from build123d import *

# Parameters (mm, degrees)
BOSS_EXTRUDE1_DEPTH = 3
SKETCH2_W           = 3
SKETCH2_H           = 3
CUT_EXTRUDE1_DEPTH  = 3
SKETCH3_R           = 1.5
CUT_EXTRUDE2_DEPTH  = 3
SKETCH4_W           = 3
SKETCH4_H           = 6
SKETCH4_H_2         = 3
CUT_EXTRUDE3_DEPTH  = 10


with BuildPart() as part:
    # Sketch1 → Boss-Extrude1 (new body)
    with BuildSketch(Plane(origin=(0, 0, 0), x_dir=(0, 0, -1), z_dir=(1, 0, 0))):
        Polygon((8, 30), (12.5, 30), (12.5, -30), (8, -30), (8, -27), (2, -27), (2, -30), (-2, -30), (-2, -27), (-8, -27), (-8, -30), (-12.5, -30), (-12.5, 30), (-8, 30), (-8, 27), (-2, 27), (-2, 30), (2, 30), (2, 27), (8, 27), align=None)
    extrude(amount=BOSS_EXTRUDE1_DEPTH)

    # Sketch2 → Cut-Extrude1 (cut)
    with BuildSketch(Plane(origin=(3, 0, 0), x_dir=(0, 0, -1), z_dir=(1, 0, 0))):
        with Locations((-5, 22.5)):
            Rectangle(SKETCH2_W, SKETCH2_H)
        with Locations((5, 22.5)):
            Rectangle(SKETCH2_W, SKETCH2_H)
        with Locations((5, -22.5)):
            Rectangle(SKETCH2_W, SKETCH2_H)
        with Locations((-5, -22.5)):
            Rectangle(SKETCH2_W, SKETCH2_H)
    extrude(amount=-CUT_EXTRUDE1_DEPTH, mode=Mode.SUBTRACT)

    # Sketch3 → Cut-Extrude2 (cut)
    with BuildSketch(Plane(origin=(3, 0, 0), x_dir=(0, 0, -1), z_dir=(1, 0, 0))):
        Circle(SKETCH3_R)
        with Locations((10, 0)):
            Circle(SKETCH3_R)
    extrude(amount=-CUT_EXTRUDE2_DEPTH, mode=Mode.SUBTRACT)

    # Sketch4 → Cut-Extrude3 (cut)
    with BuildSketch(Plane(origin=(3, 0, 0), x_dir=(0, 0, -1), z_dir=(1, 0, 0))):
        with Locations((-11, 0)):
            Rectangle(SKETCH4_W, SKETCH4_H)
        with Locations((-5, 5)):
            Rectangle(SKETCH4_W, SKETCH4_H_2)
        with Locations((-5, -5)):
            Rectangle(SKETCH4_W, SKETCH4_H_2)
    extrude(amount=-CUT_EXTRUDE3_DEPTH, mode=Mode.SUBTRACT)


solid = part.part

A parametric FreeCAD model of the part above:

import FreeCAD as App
import Part
import Sketcher
Q = App.Units.Quantity

doc = App.newDocument("Part")
body = doc.addObject("PartDesign::Body", "Body")

# Sketch on YZ plane
sketch1 = body.newObject("Sketcher::SketchObject", "Sketch")
sketch1.AttachmentSupport = (doc.getObject("YZ_Plane"), [""])
sketch1.MapMode = "FlatFace"
sketch1.addGeometry(Part.LineSegment(App.Vector(30, -12.5, 0), App.Vector(30, -8, 0)), False)
sketch1.addGeometry(Part.LineSegment(App.Vector(30, -8, 0), App.Vector(27, -8, 0)), False)
sketch1.addGeometry(Part.LineSegment(App.Vector(27, -8, 0), App.Vector(27, -2, 0)), False)
sketch1.addGeometry(Part.LineSegment(App.Vector(27, -2, 0), App.Vector(30, -2, 0)), False)
sketch1.addGeometry(Part.LineSegment(App.Vector(30, -2, 0), App.Vector(30, 2, 0)), False)
sketch1.addGeometry(Part.LineSegment(App.Vector(30, 2, 0), App.Vector(27, 2, 0)), False)
sketch1.addGeometry(Part.LineSegment(App.Vector(27, 2, 0), App.Vector(27, 8, 0)), False)
sketch1.addGeometry(Part.LineSegment(App.Vector(27, 8, 0), App.Vector(30, 8, 0)), False)
sketch1.addGeometry(Part.LineSegment(App.Vector(30, 8, 0), App.Vector(30, 12.5, 0)), False)
sketch1.addGeometry(Part.LineSegment(App.Vector(30, 12.5, 0), App.Vector(-30, 12.5, 0)), False)
sketch1.addGeometry(Part.LineSegment(App.Vector(-30, 12.5, 0), App.Vector(-30, 8, 0)), False)
sketch1.addGeometry(Part.LineSegment(App.Vector(-30, 8, 0), App.Vector(-27, 8, 0)), False)
sketch1.addGeometry(Part.LineSegment(App.Vector(-27, 8, 0), App.Vector(-27, 2, 0)), False)
sketch1.addGeometry(Part.LineSegment(App.Vector(-27, 2, 0), App.Vector(-30, 2, 0)), False)
sketch1.addGeometry(Part.LineSegment(App.Vector(-30, 2, 0), App.Vector(-30, -2, 0)), False)
sketch1.addGeometry(Part.LineSegment(App.Vector(-30, -2, 0), App.Vector(-27, -2, 0)), False)
sketch1.addGeometry(Part.LineSegment(App.Vector(-27, -2, 0), App.Vector(-27, -8, 0)), False)
sketch1.addGeometry(Part.LineSegment(App.Vector(-27, -8, 0), App.Vector(-30, -8, 0)), False)
sketch1.addGeometry(Part.LineSegment(App.Vector(-30, -8, 0), App.Vector(-30, -12.5, 0)), False)
sketch1.addGeometry(Part.LineSegment(App.Vector(-30, -12.5, 0), App.Vector(30, -12.5, 0)), False)
sketch1.addConstraint(Sketcher.Constraint("Coincident", 0, 2, 1, 1))
sketch1.addConstraint(Sketcher.Constraint("Coincident", 1, 2, 2, 1))
sketch1.addConstraint(Sketcher.Constraint("Coincident", 2, 2, 3, 1))
sketch1.addConstraint(Sketcher.Constraint("Coincident", 3, 2, 4, 1))
sketch1.addConstraint(Sketcher.Constraint("Coincident", 4, 2, 5, 1))
sketch1.addConstraint(Sketcher.Constraint("Coincident", 5, 2, 6, 1))
sketch1.addConstraint(Sketcher.Constraint("Coincident", 6, 2, 7, 1))
sketch1.addConstraint(Sketcher.Constraint("Coincident", 7, 2, 8, 1))
sketch1.addConstraint(Sketcher.Constraint("Coincident", 8, 2, 9, 1))
sketch1.addConstraint(Sketcher.Constraint("Coincident", 9, 2, 10, 1))
sketch1.addConstraint(Sketcher.Constraint("Coincident", 10, 2, 11, 1))
sketch1.addConstraint(Sketcher.Constraint("Coincident", 11, 2, 12, 1))
sketch1.addConstraint(Sketcher.Constraint("Coincident", 12, 2, 13, 1))
sketch1.addConstraint(Sketcher.Constraint("Coincident", 13, 2, 14, 1))
sketch1.addConstraint(Sketcher.Constraint("Coincident", 14, 2, 15, 1))
sketch1.addConstraint(Sketcher.Constraint("Coincident", 15, 2, 16, 1))
sketch1.addConstraint(Sketcher.Constraint("Coincident", 16, 2, 17, 1))
sketch1.addConstraint(Sketcher.Constraint("Coincident", 17, 2, 18, 1))
sketch1.addConstraint(Sketcher.Constraint("Coincident", 18, 2, 19, 1))
sketch1.addConstraint(Sketcher.Constraint("Coincident", 19, 2, 0, 1))
sketch1.addConstraint(Sketcher.Constraint("Vertical", 0))
sketch1.addConstraint(Sketcher.Constraint("Horizontal", 1))
sketch1.addConstraint(Sketcher.Constraint("Vertical", 2))
sketch1.addConstraint(Sketcher.Constraint("Horizontal", 3))
sketch1.addConstraint(Sketcher.Constraint("Vertical", 4))
sketch1.addConstraint(Sketcher.Constraint("Horizontal", 5))
sketch1.addConstraint(Sketcher.Constraint("Vertical", 6))
sketch1.addConstraint(Sketcher.Constraint("Horizontal", 7))
sketch1.addConstraint(Sketcher.Constraint("Vertical", 8))
sketch1.addConstraint(Sketcher.Constraint("Horizontal", 9))
sketch1.addConstraint(Sketcher.Constraint("Vertical", 10))
sketch1.addConstraint(Sketcher.Constraint("Horizontal", 11))
sketch1.addConstraint(Sketcher.Constraint("Vertical", 12))
sketch1.addConstraint(Sketcher.Constraint("Horizontal", 13))
sketch1.addConstraint(Sketcher.Constraint("Vertical", 14))
sketch1.addConstraint(Sketcher.Constraint("Horizontal", 15))
sketch1.addConstraint(Sketcher.Constraint("Vertical", 16))
sketch1.addConstraint(Sketcher.Constraint("Horizontal", 17))
sketch1.addConstraint(Sketcher.Constraint("Vertical", 18))
sketch1.addConstraint(Sketcher.Constraint("Horizontal", 19))
sketch1.addConstraint(Sketcher.Constraint("Symmetric", 0, 2, 10, 2, -1, 1))
sketch1.addConstraint(Sketcher.Constraint("Symmetric", 2, 2, 12, 2, -1, 1))
sketch1.addConstraint(Sketcher.Constraint("Symmetric", 4, 2, 14, 2, -1, 1))
sketch1.addConstraint(Sketcher.Constraint("Symmetric", 6, 2, 16, 2, -1, 1))
sketch1.addConstraint(Sketcher.Constraint("Symmetric", 8, 2, 18, 2, -1, 1))
sketch1.addConstraint(Sketcher.Constraint("Symmetric", 7, 2, 10, 2, -2))
sketch1.addConstraint(Sketcher.Constraint("Symmetric", 5, 2, 12, 2, -2))
sketch1.addConstraint(Sketcher.Constraint("Vertical", 0, 2, 3, 2))
sketch1.addConstraint(Sketcher.Constraint("DistanceX", 1, 2, 1, 1, Q("3 mm")))
sketch1.addConstraint(Sketcher.Constraint("DistanceX", 9, 2, 9, 1, Q("60 mm")))
sketch1.addConstraint(Sketcher.Constraint("DistanceY", 2, 1, 2, 2, Q("6 mm")))
sketch1.addConstraint(Sketcher.Constraint("DistanceY", 4, 1, 4, 2, Q("4 mm")))
sketch1.addConstraint(Sketcher.Constraint("DistanceY", 0, 1, 0, 2, Q("4.5 mm")))
pad1 = body.newObject("PartDesign::Pad", "Pad")
pad1.Profile = sketch1
pad1.Length = 3

# Sketch on YZ plane
sketch2 = body.newObject("Sketcher::SketchObject", "Sketch001")
sketch2.AttachmentSupport = (doc.getObject("YZ_Plane"), [""])
sketch2.MapMode = "FlatFace"
sketch2.AttachmentOffset = App.Placement(App.Vector(0, 0, 3), App.Rotation())
sketch2.addGeometry(Part.LineSegment(App.Vector(24, 6.5, 0), App.Vector(21, 6.5, 0)), False)
sketch2.addGeometry(Part.LineSegment(App.Vector(21, 6.5, 0), App.Vector(21, 3.5, 0)), False)
sketch2.addGeometry(Part.LineSegment(App.Vector(21, 3.5, 0), App.Vector(24, 3.5, 0)), False)
sketch2.addGeometry(Part.LineSegment(App.Vector(24, 3.5, 0), App.Vector(24, 6.5, 0)), False)
sketch2.addGeometry(Part.LineSegment(App.Vector(24, -3.5, 0), App.Vector(21, -3.5, 0)), False)
sketch2.addGeometry(Part.LineSegment(App.Vector(21, -3.5, 0), App.Vector(21, -6.5, 0)), False)
sketch2.addGeometry(Part.LineSegment(App.Vector(21, -6.5, 0), App.Vector(24, -6.5, 0)), False)
sketch2.addGeometry(Part.LineSegment(App.Vector(24, -6.5, 0), App.Vector(24, -3.5, 0)), False)
sketch2.addGeometry(Part.LineSegment(App.Vector(-21, -3.5, 0), App.Vector(-24, -3.5, 0)), False)
sketch2.addGeometry(Part.LineSegment(App.Vector(-24, -3.5, 0), App.Vector(-24, -6.5, 0)), False)
sketch2.addGeometry(Part.LineSegment(App.Vector(-24, -6.5, 0), App.Vector(-21, -6.5, 0)), False)
sketch2.addGeometry(Part.LineSegment(App.Vector(-21, -6.5, 0), App.Vector(-21, -3.5, 0)), False)
sketch2.addGeometry(Part.LineSegment(App.Vector(-21, 6.5, 0), App.Vector(-24, 6.5, 0)), False)
sketch2.addGeometry(Part.LineSegment(App.Vector(-24, 6.5, 0), App.Vector(-24, 3.5, 0)), False)
sketch2.addGeometry(Part.LineSegment(App.Vector(-24, 3.5, 0), App.Vector(-21, 3.5, 0)), False)
sketch2.addGeometry(Part.LineSegment(App.Vector(-21, 3.5, 0), App.Vector(-21, 6.5, 0)), False)
sketch2.addConstraint(Sketcher.Constraint("Coincident", 0, 2, 1, 1))
sketch2.addConstraint(Sketcher.Constraint("Coincident", 1, 2, 2, 1))
sketch2.addConstraint(Sketcher.Constraint("Coincident", 2, 2, 3, 1))
sketch2.addConstraint(Sketcher.Constraint("Coincident", 3, 2, 0, 1))
sketch2.addConstraint(Sketcher.Constraint("Coincident", 4, 2, 5, 1))
sketch2.addConstraint(Sketcher.Constraint("Coincident", 5, 2, 6, 1))
sketch2.addConstraint(Sketcher.Constraint("Coincident", 6, 2, 7, 1))
sketch2.addConstraint(Sketcher.Constraint("Coincident", 7, 2, 4, 1))
sketch2.addConstraint(Sketcher.Constraint("Coincident", 8, 2, 9, 1))
sketch2.addConstraint(Sketcher.Constraint("Coincident", 9, 2, 10, 1))
sketch2.addConstraint(Sketcher.Constraint("Coincident", 10, 2, 11, 1))
sketch2.addConstraint(Sketcher.Constraint("Coincident", 11, 2, 8, 1))
sketch2.addConstraint(Sketcher.Constraint("Coincident", 12, 2, 13, 1))
sketch2.addConstraint(Sketcher.Constraint("Coincident", 13, 2, 14, 1))
sketch2.addConstraint(Sketcher.Constraint("Coincident", 14, 2, 15, 1))
sketch2.addConstraint(Sketcher.Constraint("Coincident", 15, 2, 12, 1))
sketch2.addConstraint(Sketcher.Constraint("Horizontal", 0))
sketch2.addConstraint(Sketcher.Constraint("Vertical", 1))
sketch2.addConstraint(Sketcher.Constraint("Horizontal", 2))
sketch2.addConstraint(Sketcher.Constraint("Vertical", 3))
sketch2.addConstraint(Sketcher.Constraint("Horizontal", 4))
sketch2.addConstraint(Sketcher.Constraint("Vertical", 5))
sketch2.addConstraint(Sketcher.Constraint("Horizontal", 6))
sketch2.addConstraint(Sketcher.Constraint("Vertical", 7))
sketch2.addConstraint(Sketcher.Constraint("Horizontal", 8))
sketch2.addConstraint(Sketcher.Constraint("Vertical", 9))
sketch2.addConstraint(Sketcher.Constraint("Horizontal", 10))
sketch2.addConstraint(Sketcher.Constraint("Vertical", 11))
sketch2.addConstraint(Sketcher.Constraint("Horizontal", 12))
sketch2.addConstraint(Sketcher.Constraint("Vertical", 13))
sketch2.addConstraint(Sketcher.Constraint("Horizontal", 14))
sketch2.addConstraint(Sketcher.Constraint("Vertical", 15))
sketch2.addConstraint(Sketcher.Constraint("Symmetric", 2, 2, 8, 2, -1, 1))
sketch2.addConstraint(Sketcher.Constraint("Symmetric", 0, 2, 10, 2, -1, 1))
sketch2.addConstraint(Sketcher.Constraint("Symmetric", 6, 2, 12, 2, -1, 1))
sketch2.addConstraint(Sketcher.Constraint("Symmetric", 4, 2, 14, 2, -1, 1))
sketch2.addConstraint(Sketcher.Constraint("Symmetric", 7, 2, 8, 2, -2))
sketch2.addConstraint(Sketcher.Constraint("Symmetric", 5, 2, 10, 2, -2))
sketch2.addConstraint(Sketcher.Constraint("Equal", 14, 1))
sketch2.addConstraint(Sketcher.Constraint("DistanceX", 0, 2, 0, 1, Q("3 mm")))
sketch2.addConstraint(Sketcher.Constraint("DistanceX", -1, 1, 0, 2, Q("21 mm")))
sketch2.addConstraint(Sketcher.Constraint("DistanceY", 4, 2, 1, 2, Q("7 mm")))
pocket1 = body.newObject("PartDesign::Pocket", "Pocket")
pocket1.Profile = sketch2
pocket1.Length = 3

# Sketch on YZ plane
sketch3 = body.newObject("Sketcher::SketchObject", "Sketch002")
sketch3.AttachmentSupport = (doc.getObject("YZ_Plane"), [""])
sketch3.MapMode = "FlatFace"
sketch3.AttachmentOffset = App.Placement(App.Vector(0, 0, 3), App.Rotation())
sketch3.addGeometry(Part.Circle(App.Vector(0, 0, 0), App.Vector(0, 0, 1), 1.5), False)
sketch3.addGeometry(Part.Circle(App.Vector(0, -10, 0), App.Vector(0, 0, 1), 1.5), False)
sketch3.addConstraint(Sketcher.Constraint("Coincident", 0, 3, -1, 1))
sketch3.addConstraint(Sketcher.Constraint("Equal", 0, 1))
sketch3.addConstraint(Sketcher.Constraint("PointOnObject", 1, 3, -2))
sketch3.addConstraint(Sketcher.Constraint("Diameter", 0, Q("3 mm")))
sketch3.addConstraint(Sketcher.Constraint("DistanceY", 1, 3, -1, 1, Q("10 mm")))
pocket2 = body.newObject("PartDesign::Pocket", "Pocket001")
pocket2.Profile = sketch3
pocket2.Length = 3

# Sketch on YZ plane
sketch4 = body.newObject("Sketcher::SketchObject", "Sketch003")
sketch4.AttachmentSupport = (doc.getObject("YZ_Plane"), [""])
sketch4.MapMode = "FlatFace"
sketch4.AttachmentOffset = App.Placement(App.Vector(0, 0, 3), App.Rotation())
sketch4.addGeometry(Part.LineSegment(App.Vector(3, 12.5, 0), App.Vector(-3, 12.5, 0)), False)
sketch4.addGeometry(Part.LineSegment(App.Vector(-3, 12.5, 0), App.Vector(-3, 9.5, 0)), False)
sketch4.addGeometry(Part.LineSegment(App.Vector(-3, 9.5, 0), App.Vector(3, 9.5, 0)), False)
sketch4.addGeometry(Part.LineSegment(App.Vector(3, 9.5, 0), App.Vector(3, 12.5, 0)), False)
sketch4.addGeometry(Part.LineSegment(App.Vector(6.5, 6.5, 0), App.Vector(3.5, 6.5, 0)), False)
sketch4.addGeometry(Part.LineSegment(App.Vector(3.5, 6.5, 0), App.Vector(3.5, 3.5, 0)), False)
sketch4.addGeometry(Part.LineSegment(App.Vector(3.5, 3.5, 0), App.Vector(6.5, 3.5, 0)), False)
sketch4.addGeometry(Part.LineSegment(App.Vector(6.5, 3.5, 0), App.Vector(6.5, 6.5, 0)), False)
sketch4.addGeometry(Part.LineSegment(App.Vector(-3.5, 6.5, 0), App.Vector(-6.5, 6.5, 0)), False)
sketch4.addGeometry(Part.LineSegment(App.Vector(-6.5, 6.5, 0), App.Vector(-6.5, 3.5, 0)), False)
sketch4.addGeometry(Part.LineSegment(App.Vector(-6.5, 3.5, 0), App.Vector(-3.5, 3.5, 0)), False)
sketch4.addGeometry(Part.LineSegment(App.Vector(-3.5, 3.5, 0), App.Vector(-3.5, 6.5, 0)), False)
sketch4.addConstraint(Sketcher.Constraint("Coincident", 0, 2, 1, 1))
sketch4.addConstraint(Sketcher.Constraint("Coincident", 1, 2, 2, 1))
sketch4.addConstraint(Sketcher.Constraint("Coincident", 2, 2, 3, 1))
sketch4.addConstraint(Sketcher.Constraint("Coincident", 3, 2, 0, 1))
sketch4.addConstraint(Sketcher.Constraint("Coincident", 4, 2, 5, 1))
sketch4.addConstraint(Sketcher.Constraint("Coincident", 5, 2, 6, 1))
sketch4.addConstraint(Sketcher.Constraint("Coincident", 6, 2, 7, 1))
sketch4.addConstraint(Sketcher.Constraint("Coincident", 7, 2, 4, 1))
sketch4.addConstraint(Sketcher.Constraint("Coincident", 8, 2, 9, 1))
sketch4.addConstraint(Sketcher.Constraint("Coincident", 9, 2, 10, 1))
sketch4.addConstraint(Sketcher.Constraint("Coincident", 10, 2, 11, 1))
sketch4.addConstraint(Sketcher.Constraint("Coincident", 11, 2, 8, 1))
sketch4.addConstraint(Sketcher.Constraint("Horizontal", 0))
sketch4.addConstraint(Sketcher.Constraint("Vertical", 1))
sketch4.addConstraint(Sketcher.Constraint("Horizontal", 2))
sketch4.addConstraint(Sketcher.Constraint("Vertical", 3))
sketch4.addConstraint(Sketcher.Constraint("Horizontal", 4))
sketch4.addConstraint(Sketcher.Constraint("Vertical", 5))
sketch4.addConstraint(Sketcher.Constraint("Horizontal", 6))
sketch4.addConstraint(Sketcher.Constraint("Vertical", 7))
sketch4.addConstraint(Sketcher.Constraint("Horizontal", 8))
sketch4.addConstraint(Sketcher.Constraint("Vertical", 9))
sketch4.addConstraint(Sketcher.Constraint("Horizontal", 10))
sketch4.addConstraint(Sketcher.Constraint("Vertical", 11))
sketch4.addConstraint(Sketcher.Constraint("Symmetric", 7, 2, 8, 2, -2))
sketch4.addConstraint(Sketcher.Constraint("Symmetric", 5, 2, 10, 2, -2))
sketch4.addConstraint(Sketcher.Constraint("Equal", 10, 1))
sketch4.addConstraint(Sketcher.Constraint("Equal", 3, 5))
sketch4.addConstraint(Sketcher.Constraint("DistanceX", 0, 2, 0, 1, Q("6 mm")))
sketch4.addConstraint(Sketcher.Constraint("DistanceX", 4, 2, 4, 1, Q("3 mm")))
sketch4.addConstraint(Sketcher.Constraint("DistanceX", 0, 2, -1, 1, Q("3 mm")))
sketch4.addConstraint(Sketcher.Constraint("DistanceY", 4, 2, 2, 2, Q("3 mm")))
sketch4.addConstraint(Sketcher.Constraint("DistanceX", 8, 2, 4, 2, Q("10 mm")))
sketch4.addConstraint(Sketcher.Constraint("DistanceY", -1, 1, 0, 2, Q("12.5 mm")))
pocket3 = body.newObject("PartDesign::Pocket", "Pocket002")
pocket3.Profile = sketch4
pocket3.Length = 10

doc.recompute()
